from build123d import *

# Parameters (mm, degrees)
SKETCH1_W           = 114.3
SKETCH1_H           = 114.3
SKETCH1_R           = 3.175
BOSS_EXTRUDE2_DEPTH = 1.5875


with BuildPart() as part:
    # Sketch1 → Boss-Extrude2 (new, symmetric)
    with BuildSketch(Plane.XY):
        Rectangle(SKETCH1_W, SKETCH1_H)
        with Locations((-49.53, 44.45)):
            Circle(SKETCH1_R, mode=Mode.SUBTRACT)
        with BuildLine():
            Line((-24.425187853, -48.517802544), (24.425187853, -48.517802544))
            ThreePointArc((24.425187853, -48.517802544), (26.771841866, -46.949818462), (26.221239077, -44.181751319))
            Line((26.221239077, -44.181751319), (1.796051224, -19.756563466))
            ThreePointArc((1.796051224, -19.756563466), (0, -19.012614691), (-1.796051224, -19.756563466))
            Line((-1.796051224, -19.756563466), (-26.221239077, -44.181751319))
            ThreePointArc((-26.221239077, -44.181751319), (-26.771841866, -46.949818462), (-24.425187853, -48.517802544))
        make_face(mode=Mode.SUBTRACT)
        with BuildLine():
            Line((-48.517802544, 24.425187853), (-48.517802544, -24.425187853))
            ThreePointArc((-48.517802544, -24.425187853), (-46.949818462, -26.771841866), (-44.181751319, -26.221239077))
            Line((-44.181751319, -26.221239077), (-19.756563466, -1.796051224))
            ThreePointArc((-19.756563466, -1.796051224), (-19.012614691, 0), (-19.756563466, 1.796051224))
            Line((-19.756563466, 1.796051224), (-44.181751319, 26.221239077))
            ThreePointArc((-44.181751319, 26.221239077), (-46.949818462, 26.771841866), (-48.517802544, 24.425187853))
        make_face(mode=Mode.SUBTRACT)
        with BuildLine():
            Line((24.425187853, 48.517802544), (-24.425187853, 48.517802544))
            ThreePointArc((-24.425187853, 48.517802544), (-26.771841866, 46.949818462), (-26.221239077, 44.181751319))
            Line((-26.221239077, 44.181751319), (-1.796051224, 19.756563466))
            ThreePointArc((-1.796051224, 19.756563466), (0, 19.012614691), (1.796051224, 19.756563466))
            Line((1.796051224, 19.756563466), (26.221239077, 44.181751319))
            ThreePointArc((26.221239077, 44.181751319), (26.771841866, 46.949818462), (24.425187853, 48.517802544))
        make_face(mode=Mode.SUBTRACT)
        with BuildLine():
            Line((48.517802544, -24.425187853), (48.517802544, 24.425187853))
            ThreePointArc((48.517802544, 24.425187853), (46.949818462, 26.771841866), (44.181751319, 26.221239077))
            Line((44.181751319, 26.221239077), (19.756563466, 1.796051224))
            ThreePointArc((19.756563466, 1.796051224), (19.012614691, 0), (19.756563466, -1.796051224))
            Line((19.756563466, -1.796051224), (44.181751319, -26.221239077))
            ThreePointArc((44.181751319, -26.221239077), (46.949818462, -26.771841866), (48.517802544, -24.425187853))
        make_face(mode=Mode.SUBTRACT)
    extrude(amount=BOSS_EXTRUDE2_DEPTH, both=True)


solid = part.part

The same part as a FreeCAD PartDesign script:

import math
import FreeCAD as App
import Part
import Sketcher

V = App.Vector
Q = App.Units.Quantity

doc = App.newDocument("Part")
body = doc.addObject("PartDesign::Body", "Body")

# Sketch on XY plane
sketch1 = doc.addObject("Sketcher::SketchObject", "Sketch")
body.addObject(sketch1)
sketch1.AttachmentSupport = (doc.XY_Plane, [""])
sketch1.MapMode = "FlatFace"
sketch1.addGeometry(Part.LineSegment(V(-57.15, 57.15, 0), V(-57.15, -57.15, 0)), False)
sketch1.addGeometry(Part.LineSegment(V(-57.15, -57.15, 0), V(57.15, -57.15, 0)), False)
sketch1.addGeometry(Part.LineSegment(V(57.15, -57.15, 0), V(57.15, 57.15, 0)), False)
sketch1.addGeometry(Part.LineSegment(V(57.15, 57.15, 0), V(-57.15, 57.15, 0)), False)
sketch1.addGeometry(Part.LineSegment(V(-48.517803, -24.425188, 0), V(-48.517803, 24.425188, 0)), False)
sketch1.addGeometry(Part.ArcOfCircle(Part.Circle(V(-45.977803, 24.425188, 0), V(0, 0, 1), 2.54), math.radians(45), math.radians(180)), False)
sketch1.addGeometry(Part.LineSegment(V(-44.181751, 26.221239, 0), V(-19.756563, 1.796051, 0)), False)
sketch1.addGeometry(Part.ArcOfCircle(Part.Circle(V(-21.552615, 0, 0), V(0, 0, 1), 2.54), math.radians(-45), math.radians(45)), False)
sketch1.addGeometry(Part.LineSegment(V(-19.756563, -1.796051, 0), V(-44.181751, -26.221239, 0)), False)
sketch1.addGeometry(Part.ArcOfCircle(Part.Circle(V(-45.977803, -24.425188, 0), V(0, 0, 1), 2.54), math.radians(180), math.radians(315)), False)
sketch1.addGeometry(Part.LineSegment(V(24.425188, -48.517803, 0), V(-24.425188, -48.517803, 0)), False)
sketch1.addGeometry(Part.ArcOfCircle(Part.Circle(V(-24.425188, -45.977803, 0), V(0, 0, 1), 2.54), math.radians(135), math.radians(270)), False)
sketch1.addGeometry(Part.LineSegment(V(-26.221239, -44.181751, 0), V(-1.796051, -19.756563, 0)), False)
sketch1.addGeometry(Part.ArcOfCircle(Part.Circle(V(0, -21.552615, 0), V(0, 0, 1), 2.54), math.radians(45), math.radians(135)), False)
sketch1.addGeometry(Part.LineSegment(V(1.796051, -19.756563, 0), V(26.221239, -44.181751, 0)), False)
sketch1.addGeometry(Part.ArcOfCircle(Part.Circle(V(24.425188, -45.977803, 0), V(0, 0, 1), 2.54), math.radians(-90), math.radians(45)), False)
sketch1.addGeometry(Part.LineSegment(V(48.517803, 24.425188, 0), V(48.517803, -24.425188, 0)), False)
sketch1.addGeometry(Part.ArcOfCircle(Part.Circle(V(45.977803, -24.425188, 0), V(0, 0, 1), 2.54), math.radians(-135), math.radians(0)), False)
sketch1.addGeometry(Part.LineSegment(V(44.181751, -26.221239, 0), V(19.756563, -1.796051, 0)), False)
sketch1.addGeometry(Part.ArcOfCircle(Part.Circle(V(21.552615, 0, 0), V(0, 0, 1), 2.54), math.radians(135), math.radians(225)), False)
sketch1.addGeometry(Part.LineSegment(V(19.756563, 1.796051, 0), V(44.181751, 26.221239, 0)), False)
sketch1.addGeometry(Part.ArcOfCircle(Part.Circle(V(45.977803, 24.425188, 0), V(0, 0, 1), 2.54), math.radians(0), math.radians(135)), False)
sketch1.addGeometry(Part.Circle(V(-49.53, 44.45, 0), V(0, 0, 1), 3.175), False)
sketch1.addGeometry(Part.LineSegment(V(-24.425188, 48.517803, 0), V(24.425188, 48.517803, 0)), False)
sketch1.addGeometry(Part.ArcOfCircle(Part.Circle(V(24.425188, 45.977803, 0), V(0, 0, 1), 2.54), math.radians(-45), math.radians(90)), False)
sketch1.addGeometry(Part.LineSegment(V(26.221239, 44.181751, 0), V(1.796051, 19.756563, 0)), False)
sketch1.addGeometry(Part.ArcOfCircle(Part.Circle(V(0, 21.552615, 0), V(0, 0, 1), 2.54), math.radians(-135), math.radians(-45)), False)
sketch1.addGeometry(Part.LineSegment(V(-1.796051, 19.756563, 0), V(-26.221239, 44.181751, 0)), False)
sketch1.addGeometry(Part.ArcOfCircle(Part.Circle(V(-24.425188, 45.977803, 0), V(0, 0, 1), 2.54), math.radians(90), math.radians(225)), False)
sketch1.addConstraint(Sketcher.Constraint("Coincident", 0, 2, 1, 1))
sketch1.addConstraint(Sketcher.Constraint("Coincident", 1, 2, 2, 1))
sketch1.addConstraint(Sketcher.Constraint("Coincident", 2, 2, 3, 1))
sketch1.addConstraint(Sketcher.Constraint("Coincident", 3, 2, 0, 1))
sketch1.addConstraint(Sketcher.Constraint("Tangent", 4, 2, 5, 2))
sketch1.addConstraint(Sketcher.Constraint("Tangent", 5, 1, 6, 1))
sketch1.addConstraint(Sketcher.Constraint("Tangent", 6, 2, 7, 2))
sketch1.addConstraint(Sketcher.Constraint("Tangent", 7, 1, 8, 1))
sketch1.addConstraint(Sketcher.Constraint("Tangent", 8, 2, 9, 2))
sketch1.addConstraint(Sketcher.Constraint("Tangent", 9, 1, 4, 1))
sketch1.addConstraint(Sketcher.Constraint("Tangent", 10, 2, 11, 2))
sketch1.addConstraint(Sketcher.Constraint("Tangent", 11, 1, 12, 1))
sketch1.addConstraint(Sketcher.Constraint("Tangent", 12, 2, 13, 2))
sketch1.addConstraint(Sketcher.Constraint("Tangent", 13, 1, 14, 1))
sketch1.addConstraint(Sketcher.Constraint("Tangent", 14, 2, 15, 2))
sketch1.addConstraint(Sketcher.Constraint("Tangent", 15, 1, 10, 1))
sketch1.addConstraint(Sketcher.Constraint("Tangent", 16, 2, 17, 2))
sketch1.addConstraint(Sketcher.Constraint("Tangent", 17, 1, 18, 1))
sketch1.addConstraint(Sketcher.Constraint("Tangent", 18, 2, 19, 2))
sketch1.addConstraint(Sketcher.Constraint("Tangent", 19, 1, 20, 1))
sketch1.addConstraint(Sketcher.Constraint("Tangent", 20, 2, 21, 2))
sketch1.addConstraint(Sketcher.Constraint("Tangent", 21, 1, 16, 1))
sketch1.addConstraint(Sketcher.Constraint("Tangent", 23, 2, 24, 2))
sketch1.addConstraint(Sketcher.Constraint("Tangent", 24, 1, 25, 1))
sketch1.addConstraint(Sketcher.Constraint("Tangent", 25, 2, 26, 2))
sketch1.addConstraint(Sketcher.Constraint("Tangent", 26, 1, 27, 1))
sketch1.addConstraint(Sketcher.Constraint("Tangent", 27, 2, 28, 2))
sketch1.addConstraint(Sketcher.Constraint("Tangent", 28, 1, 23, 1))
sketch1.addConstraint(Sketcher.Constraint("Vertical", 0))
sketch1.addConstraint(Sketcher.Constraint("Horizontal", 1))
sketch1.addConstraint(Sketcher.Constraint("Vertical", 2))
sketch1.addConstraint(Sketcher.Constraint("Horizontal", 3))
sketch1.addConstraint(Sketcher.Constraint("Vertical", 4))
sketch1.addConstraint(Sketcher.Constraint("Horizontal", 10))
sketch1.addConstraint(Sketcher.Constraint("Vertical", 16))
sketch1.addConstraint(Sketcher.Constraint("Horizontal", 23))
sketch1.addConstraint(Sketcher.Constraint("Equal", 5, 7))
sketch1.addConstraint(Sketcher.Constraint("Equal", 7, 9))
sketch1.addConstraint(Sketcher.Constraint("Equal", 9, 11))
sketch1.addConstraint(Sketcher.Constraint("Equal", 11, 13))
sketch1.addConstraint(Sketcher.Constraint("Equal", 13, 15))
sketch1.addConstraint(Sketcher.Constraint("Equal", 15, 17))
sketch1.addConstraint(Sketcher.Constraint("Equal", 17, 19))
sketch1.addConstraint(Sketcher.Constraint("Equal", 19, 21))
sketch1.addConstraint(Sketcher.Constraint("Equal", 21, 24))
sketch1.addConstraint(Sketcher.Constraint("Equal", 24, 26))
sketch1.addConstraint(Sketcher.Constraint("Equal", 26, 28))
sketch1.addConstraint(Sketcher.Constraint("Symmetric", 5, 3, 17, 3, -1, 1))
sketch1.addConstraint(Sketcher.Constraint("Symmetric", 7, 3, 19, 3, -1, 1))
sketch1.addConstraint(Sketcher.Constraint("Symmetric", 11, 3, 24, 3, -1, 1))
sketch1.addConstraint(Sketcher.Constraint("Symmetric", 13, 3, 26, 3, -1, 1))
sketch1.addConstraint(Sketcher.Constraint("Symmetric", 0, 2, 2, 2, -1, 1))
sketch1.addConstraint(Sketcher.Constraint("Symmetric", 12, 2, 13, 1, -2))
sketch1.addConstraint(Sketcher.Constraint("Symmetric", 8, 2, 17, 1, -2))
sketch1.addConstraint(Sketcher.Constraint("Perpendicular", 6, 8))
sketch1.addConstraint(Sketcher.Constraint("Parallel", 8, 12))
sketch1.addConstraint(Sketcher.Constraint("Perpendicular", 18, 20))
sketch1.addConstraint(Sketcher.Constraint("Perpendicular", 25, 27))
sketch1.addConstraint(Sketcher.Constraint("Equal", 3, 0))
sketch1.addConstraint(Sketcher.Constraint("Equal", 23, 4))
sketch1.addConstraint(Sketcher.Constraint("Radius", 5, Q("0.1 in")))
sketch1.addConstraint(Sketcher.Constraint("Diameter", 22, Q("0.25 in")))
sketch1.addConstraint(Sketcher.Constraint("DistanceX", 1, 1, 1, 2, Q("4.5 in")))
sketch1.addConstraint(Sketcher.Constraint("DistanceX", 3, 2, 22, 3, Q("0.3 in")))
sketch1.addConstraint(Sketcher.Constraint("DistanceY", 22, 3, 3, 2, Q("0.5 in")))
sketch1.addConstraint(Sketcher.Constraint("Distance", 6, Q("34.542432 mm")))
sketch1.addConstraint(Sketcher.Constraint("DistanceX", 5, 1, -1, 1, Q("44.181751 mm")))
sketch1.addConstraint(Sketcher.Constraint("DistanceY", 11, 1, -1, 1, Q("44.181751 mm")))
pad1 = doc.addObject("PartDesign::Pad", "Pad")
body.addObject(pad1)
pad1.Profile = sketch1
pad1.Length = Q("0.125 in")
pad1.Midplane = True

doc.recompute()
